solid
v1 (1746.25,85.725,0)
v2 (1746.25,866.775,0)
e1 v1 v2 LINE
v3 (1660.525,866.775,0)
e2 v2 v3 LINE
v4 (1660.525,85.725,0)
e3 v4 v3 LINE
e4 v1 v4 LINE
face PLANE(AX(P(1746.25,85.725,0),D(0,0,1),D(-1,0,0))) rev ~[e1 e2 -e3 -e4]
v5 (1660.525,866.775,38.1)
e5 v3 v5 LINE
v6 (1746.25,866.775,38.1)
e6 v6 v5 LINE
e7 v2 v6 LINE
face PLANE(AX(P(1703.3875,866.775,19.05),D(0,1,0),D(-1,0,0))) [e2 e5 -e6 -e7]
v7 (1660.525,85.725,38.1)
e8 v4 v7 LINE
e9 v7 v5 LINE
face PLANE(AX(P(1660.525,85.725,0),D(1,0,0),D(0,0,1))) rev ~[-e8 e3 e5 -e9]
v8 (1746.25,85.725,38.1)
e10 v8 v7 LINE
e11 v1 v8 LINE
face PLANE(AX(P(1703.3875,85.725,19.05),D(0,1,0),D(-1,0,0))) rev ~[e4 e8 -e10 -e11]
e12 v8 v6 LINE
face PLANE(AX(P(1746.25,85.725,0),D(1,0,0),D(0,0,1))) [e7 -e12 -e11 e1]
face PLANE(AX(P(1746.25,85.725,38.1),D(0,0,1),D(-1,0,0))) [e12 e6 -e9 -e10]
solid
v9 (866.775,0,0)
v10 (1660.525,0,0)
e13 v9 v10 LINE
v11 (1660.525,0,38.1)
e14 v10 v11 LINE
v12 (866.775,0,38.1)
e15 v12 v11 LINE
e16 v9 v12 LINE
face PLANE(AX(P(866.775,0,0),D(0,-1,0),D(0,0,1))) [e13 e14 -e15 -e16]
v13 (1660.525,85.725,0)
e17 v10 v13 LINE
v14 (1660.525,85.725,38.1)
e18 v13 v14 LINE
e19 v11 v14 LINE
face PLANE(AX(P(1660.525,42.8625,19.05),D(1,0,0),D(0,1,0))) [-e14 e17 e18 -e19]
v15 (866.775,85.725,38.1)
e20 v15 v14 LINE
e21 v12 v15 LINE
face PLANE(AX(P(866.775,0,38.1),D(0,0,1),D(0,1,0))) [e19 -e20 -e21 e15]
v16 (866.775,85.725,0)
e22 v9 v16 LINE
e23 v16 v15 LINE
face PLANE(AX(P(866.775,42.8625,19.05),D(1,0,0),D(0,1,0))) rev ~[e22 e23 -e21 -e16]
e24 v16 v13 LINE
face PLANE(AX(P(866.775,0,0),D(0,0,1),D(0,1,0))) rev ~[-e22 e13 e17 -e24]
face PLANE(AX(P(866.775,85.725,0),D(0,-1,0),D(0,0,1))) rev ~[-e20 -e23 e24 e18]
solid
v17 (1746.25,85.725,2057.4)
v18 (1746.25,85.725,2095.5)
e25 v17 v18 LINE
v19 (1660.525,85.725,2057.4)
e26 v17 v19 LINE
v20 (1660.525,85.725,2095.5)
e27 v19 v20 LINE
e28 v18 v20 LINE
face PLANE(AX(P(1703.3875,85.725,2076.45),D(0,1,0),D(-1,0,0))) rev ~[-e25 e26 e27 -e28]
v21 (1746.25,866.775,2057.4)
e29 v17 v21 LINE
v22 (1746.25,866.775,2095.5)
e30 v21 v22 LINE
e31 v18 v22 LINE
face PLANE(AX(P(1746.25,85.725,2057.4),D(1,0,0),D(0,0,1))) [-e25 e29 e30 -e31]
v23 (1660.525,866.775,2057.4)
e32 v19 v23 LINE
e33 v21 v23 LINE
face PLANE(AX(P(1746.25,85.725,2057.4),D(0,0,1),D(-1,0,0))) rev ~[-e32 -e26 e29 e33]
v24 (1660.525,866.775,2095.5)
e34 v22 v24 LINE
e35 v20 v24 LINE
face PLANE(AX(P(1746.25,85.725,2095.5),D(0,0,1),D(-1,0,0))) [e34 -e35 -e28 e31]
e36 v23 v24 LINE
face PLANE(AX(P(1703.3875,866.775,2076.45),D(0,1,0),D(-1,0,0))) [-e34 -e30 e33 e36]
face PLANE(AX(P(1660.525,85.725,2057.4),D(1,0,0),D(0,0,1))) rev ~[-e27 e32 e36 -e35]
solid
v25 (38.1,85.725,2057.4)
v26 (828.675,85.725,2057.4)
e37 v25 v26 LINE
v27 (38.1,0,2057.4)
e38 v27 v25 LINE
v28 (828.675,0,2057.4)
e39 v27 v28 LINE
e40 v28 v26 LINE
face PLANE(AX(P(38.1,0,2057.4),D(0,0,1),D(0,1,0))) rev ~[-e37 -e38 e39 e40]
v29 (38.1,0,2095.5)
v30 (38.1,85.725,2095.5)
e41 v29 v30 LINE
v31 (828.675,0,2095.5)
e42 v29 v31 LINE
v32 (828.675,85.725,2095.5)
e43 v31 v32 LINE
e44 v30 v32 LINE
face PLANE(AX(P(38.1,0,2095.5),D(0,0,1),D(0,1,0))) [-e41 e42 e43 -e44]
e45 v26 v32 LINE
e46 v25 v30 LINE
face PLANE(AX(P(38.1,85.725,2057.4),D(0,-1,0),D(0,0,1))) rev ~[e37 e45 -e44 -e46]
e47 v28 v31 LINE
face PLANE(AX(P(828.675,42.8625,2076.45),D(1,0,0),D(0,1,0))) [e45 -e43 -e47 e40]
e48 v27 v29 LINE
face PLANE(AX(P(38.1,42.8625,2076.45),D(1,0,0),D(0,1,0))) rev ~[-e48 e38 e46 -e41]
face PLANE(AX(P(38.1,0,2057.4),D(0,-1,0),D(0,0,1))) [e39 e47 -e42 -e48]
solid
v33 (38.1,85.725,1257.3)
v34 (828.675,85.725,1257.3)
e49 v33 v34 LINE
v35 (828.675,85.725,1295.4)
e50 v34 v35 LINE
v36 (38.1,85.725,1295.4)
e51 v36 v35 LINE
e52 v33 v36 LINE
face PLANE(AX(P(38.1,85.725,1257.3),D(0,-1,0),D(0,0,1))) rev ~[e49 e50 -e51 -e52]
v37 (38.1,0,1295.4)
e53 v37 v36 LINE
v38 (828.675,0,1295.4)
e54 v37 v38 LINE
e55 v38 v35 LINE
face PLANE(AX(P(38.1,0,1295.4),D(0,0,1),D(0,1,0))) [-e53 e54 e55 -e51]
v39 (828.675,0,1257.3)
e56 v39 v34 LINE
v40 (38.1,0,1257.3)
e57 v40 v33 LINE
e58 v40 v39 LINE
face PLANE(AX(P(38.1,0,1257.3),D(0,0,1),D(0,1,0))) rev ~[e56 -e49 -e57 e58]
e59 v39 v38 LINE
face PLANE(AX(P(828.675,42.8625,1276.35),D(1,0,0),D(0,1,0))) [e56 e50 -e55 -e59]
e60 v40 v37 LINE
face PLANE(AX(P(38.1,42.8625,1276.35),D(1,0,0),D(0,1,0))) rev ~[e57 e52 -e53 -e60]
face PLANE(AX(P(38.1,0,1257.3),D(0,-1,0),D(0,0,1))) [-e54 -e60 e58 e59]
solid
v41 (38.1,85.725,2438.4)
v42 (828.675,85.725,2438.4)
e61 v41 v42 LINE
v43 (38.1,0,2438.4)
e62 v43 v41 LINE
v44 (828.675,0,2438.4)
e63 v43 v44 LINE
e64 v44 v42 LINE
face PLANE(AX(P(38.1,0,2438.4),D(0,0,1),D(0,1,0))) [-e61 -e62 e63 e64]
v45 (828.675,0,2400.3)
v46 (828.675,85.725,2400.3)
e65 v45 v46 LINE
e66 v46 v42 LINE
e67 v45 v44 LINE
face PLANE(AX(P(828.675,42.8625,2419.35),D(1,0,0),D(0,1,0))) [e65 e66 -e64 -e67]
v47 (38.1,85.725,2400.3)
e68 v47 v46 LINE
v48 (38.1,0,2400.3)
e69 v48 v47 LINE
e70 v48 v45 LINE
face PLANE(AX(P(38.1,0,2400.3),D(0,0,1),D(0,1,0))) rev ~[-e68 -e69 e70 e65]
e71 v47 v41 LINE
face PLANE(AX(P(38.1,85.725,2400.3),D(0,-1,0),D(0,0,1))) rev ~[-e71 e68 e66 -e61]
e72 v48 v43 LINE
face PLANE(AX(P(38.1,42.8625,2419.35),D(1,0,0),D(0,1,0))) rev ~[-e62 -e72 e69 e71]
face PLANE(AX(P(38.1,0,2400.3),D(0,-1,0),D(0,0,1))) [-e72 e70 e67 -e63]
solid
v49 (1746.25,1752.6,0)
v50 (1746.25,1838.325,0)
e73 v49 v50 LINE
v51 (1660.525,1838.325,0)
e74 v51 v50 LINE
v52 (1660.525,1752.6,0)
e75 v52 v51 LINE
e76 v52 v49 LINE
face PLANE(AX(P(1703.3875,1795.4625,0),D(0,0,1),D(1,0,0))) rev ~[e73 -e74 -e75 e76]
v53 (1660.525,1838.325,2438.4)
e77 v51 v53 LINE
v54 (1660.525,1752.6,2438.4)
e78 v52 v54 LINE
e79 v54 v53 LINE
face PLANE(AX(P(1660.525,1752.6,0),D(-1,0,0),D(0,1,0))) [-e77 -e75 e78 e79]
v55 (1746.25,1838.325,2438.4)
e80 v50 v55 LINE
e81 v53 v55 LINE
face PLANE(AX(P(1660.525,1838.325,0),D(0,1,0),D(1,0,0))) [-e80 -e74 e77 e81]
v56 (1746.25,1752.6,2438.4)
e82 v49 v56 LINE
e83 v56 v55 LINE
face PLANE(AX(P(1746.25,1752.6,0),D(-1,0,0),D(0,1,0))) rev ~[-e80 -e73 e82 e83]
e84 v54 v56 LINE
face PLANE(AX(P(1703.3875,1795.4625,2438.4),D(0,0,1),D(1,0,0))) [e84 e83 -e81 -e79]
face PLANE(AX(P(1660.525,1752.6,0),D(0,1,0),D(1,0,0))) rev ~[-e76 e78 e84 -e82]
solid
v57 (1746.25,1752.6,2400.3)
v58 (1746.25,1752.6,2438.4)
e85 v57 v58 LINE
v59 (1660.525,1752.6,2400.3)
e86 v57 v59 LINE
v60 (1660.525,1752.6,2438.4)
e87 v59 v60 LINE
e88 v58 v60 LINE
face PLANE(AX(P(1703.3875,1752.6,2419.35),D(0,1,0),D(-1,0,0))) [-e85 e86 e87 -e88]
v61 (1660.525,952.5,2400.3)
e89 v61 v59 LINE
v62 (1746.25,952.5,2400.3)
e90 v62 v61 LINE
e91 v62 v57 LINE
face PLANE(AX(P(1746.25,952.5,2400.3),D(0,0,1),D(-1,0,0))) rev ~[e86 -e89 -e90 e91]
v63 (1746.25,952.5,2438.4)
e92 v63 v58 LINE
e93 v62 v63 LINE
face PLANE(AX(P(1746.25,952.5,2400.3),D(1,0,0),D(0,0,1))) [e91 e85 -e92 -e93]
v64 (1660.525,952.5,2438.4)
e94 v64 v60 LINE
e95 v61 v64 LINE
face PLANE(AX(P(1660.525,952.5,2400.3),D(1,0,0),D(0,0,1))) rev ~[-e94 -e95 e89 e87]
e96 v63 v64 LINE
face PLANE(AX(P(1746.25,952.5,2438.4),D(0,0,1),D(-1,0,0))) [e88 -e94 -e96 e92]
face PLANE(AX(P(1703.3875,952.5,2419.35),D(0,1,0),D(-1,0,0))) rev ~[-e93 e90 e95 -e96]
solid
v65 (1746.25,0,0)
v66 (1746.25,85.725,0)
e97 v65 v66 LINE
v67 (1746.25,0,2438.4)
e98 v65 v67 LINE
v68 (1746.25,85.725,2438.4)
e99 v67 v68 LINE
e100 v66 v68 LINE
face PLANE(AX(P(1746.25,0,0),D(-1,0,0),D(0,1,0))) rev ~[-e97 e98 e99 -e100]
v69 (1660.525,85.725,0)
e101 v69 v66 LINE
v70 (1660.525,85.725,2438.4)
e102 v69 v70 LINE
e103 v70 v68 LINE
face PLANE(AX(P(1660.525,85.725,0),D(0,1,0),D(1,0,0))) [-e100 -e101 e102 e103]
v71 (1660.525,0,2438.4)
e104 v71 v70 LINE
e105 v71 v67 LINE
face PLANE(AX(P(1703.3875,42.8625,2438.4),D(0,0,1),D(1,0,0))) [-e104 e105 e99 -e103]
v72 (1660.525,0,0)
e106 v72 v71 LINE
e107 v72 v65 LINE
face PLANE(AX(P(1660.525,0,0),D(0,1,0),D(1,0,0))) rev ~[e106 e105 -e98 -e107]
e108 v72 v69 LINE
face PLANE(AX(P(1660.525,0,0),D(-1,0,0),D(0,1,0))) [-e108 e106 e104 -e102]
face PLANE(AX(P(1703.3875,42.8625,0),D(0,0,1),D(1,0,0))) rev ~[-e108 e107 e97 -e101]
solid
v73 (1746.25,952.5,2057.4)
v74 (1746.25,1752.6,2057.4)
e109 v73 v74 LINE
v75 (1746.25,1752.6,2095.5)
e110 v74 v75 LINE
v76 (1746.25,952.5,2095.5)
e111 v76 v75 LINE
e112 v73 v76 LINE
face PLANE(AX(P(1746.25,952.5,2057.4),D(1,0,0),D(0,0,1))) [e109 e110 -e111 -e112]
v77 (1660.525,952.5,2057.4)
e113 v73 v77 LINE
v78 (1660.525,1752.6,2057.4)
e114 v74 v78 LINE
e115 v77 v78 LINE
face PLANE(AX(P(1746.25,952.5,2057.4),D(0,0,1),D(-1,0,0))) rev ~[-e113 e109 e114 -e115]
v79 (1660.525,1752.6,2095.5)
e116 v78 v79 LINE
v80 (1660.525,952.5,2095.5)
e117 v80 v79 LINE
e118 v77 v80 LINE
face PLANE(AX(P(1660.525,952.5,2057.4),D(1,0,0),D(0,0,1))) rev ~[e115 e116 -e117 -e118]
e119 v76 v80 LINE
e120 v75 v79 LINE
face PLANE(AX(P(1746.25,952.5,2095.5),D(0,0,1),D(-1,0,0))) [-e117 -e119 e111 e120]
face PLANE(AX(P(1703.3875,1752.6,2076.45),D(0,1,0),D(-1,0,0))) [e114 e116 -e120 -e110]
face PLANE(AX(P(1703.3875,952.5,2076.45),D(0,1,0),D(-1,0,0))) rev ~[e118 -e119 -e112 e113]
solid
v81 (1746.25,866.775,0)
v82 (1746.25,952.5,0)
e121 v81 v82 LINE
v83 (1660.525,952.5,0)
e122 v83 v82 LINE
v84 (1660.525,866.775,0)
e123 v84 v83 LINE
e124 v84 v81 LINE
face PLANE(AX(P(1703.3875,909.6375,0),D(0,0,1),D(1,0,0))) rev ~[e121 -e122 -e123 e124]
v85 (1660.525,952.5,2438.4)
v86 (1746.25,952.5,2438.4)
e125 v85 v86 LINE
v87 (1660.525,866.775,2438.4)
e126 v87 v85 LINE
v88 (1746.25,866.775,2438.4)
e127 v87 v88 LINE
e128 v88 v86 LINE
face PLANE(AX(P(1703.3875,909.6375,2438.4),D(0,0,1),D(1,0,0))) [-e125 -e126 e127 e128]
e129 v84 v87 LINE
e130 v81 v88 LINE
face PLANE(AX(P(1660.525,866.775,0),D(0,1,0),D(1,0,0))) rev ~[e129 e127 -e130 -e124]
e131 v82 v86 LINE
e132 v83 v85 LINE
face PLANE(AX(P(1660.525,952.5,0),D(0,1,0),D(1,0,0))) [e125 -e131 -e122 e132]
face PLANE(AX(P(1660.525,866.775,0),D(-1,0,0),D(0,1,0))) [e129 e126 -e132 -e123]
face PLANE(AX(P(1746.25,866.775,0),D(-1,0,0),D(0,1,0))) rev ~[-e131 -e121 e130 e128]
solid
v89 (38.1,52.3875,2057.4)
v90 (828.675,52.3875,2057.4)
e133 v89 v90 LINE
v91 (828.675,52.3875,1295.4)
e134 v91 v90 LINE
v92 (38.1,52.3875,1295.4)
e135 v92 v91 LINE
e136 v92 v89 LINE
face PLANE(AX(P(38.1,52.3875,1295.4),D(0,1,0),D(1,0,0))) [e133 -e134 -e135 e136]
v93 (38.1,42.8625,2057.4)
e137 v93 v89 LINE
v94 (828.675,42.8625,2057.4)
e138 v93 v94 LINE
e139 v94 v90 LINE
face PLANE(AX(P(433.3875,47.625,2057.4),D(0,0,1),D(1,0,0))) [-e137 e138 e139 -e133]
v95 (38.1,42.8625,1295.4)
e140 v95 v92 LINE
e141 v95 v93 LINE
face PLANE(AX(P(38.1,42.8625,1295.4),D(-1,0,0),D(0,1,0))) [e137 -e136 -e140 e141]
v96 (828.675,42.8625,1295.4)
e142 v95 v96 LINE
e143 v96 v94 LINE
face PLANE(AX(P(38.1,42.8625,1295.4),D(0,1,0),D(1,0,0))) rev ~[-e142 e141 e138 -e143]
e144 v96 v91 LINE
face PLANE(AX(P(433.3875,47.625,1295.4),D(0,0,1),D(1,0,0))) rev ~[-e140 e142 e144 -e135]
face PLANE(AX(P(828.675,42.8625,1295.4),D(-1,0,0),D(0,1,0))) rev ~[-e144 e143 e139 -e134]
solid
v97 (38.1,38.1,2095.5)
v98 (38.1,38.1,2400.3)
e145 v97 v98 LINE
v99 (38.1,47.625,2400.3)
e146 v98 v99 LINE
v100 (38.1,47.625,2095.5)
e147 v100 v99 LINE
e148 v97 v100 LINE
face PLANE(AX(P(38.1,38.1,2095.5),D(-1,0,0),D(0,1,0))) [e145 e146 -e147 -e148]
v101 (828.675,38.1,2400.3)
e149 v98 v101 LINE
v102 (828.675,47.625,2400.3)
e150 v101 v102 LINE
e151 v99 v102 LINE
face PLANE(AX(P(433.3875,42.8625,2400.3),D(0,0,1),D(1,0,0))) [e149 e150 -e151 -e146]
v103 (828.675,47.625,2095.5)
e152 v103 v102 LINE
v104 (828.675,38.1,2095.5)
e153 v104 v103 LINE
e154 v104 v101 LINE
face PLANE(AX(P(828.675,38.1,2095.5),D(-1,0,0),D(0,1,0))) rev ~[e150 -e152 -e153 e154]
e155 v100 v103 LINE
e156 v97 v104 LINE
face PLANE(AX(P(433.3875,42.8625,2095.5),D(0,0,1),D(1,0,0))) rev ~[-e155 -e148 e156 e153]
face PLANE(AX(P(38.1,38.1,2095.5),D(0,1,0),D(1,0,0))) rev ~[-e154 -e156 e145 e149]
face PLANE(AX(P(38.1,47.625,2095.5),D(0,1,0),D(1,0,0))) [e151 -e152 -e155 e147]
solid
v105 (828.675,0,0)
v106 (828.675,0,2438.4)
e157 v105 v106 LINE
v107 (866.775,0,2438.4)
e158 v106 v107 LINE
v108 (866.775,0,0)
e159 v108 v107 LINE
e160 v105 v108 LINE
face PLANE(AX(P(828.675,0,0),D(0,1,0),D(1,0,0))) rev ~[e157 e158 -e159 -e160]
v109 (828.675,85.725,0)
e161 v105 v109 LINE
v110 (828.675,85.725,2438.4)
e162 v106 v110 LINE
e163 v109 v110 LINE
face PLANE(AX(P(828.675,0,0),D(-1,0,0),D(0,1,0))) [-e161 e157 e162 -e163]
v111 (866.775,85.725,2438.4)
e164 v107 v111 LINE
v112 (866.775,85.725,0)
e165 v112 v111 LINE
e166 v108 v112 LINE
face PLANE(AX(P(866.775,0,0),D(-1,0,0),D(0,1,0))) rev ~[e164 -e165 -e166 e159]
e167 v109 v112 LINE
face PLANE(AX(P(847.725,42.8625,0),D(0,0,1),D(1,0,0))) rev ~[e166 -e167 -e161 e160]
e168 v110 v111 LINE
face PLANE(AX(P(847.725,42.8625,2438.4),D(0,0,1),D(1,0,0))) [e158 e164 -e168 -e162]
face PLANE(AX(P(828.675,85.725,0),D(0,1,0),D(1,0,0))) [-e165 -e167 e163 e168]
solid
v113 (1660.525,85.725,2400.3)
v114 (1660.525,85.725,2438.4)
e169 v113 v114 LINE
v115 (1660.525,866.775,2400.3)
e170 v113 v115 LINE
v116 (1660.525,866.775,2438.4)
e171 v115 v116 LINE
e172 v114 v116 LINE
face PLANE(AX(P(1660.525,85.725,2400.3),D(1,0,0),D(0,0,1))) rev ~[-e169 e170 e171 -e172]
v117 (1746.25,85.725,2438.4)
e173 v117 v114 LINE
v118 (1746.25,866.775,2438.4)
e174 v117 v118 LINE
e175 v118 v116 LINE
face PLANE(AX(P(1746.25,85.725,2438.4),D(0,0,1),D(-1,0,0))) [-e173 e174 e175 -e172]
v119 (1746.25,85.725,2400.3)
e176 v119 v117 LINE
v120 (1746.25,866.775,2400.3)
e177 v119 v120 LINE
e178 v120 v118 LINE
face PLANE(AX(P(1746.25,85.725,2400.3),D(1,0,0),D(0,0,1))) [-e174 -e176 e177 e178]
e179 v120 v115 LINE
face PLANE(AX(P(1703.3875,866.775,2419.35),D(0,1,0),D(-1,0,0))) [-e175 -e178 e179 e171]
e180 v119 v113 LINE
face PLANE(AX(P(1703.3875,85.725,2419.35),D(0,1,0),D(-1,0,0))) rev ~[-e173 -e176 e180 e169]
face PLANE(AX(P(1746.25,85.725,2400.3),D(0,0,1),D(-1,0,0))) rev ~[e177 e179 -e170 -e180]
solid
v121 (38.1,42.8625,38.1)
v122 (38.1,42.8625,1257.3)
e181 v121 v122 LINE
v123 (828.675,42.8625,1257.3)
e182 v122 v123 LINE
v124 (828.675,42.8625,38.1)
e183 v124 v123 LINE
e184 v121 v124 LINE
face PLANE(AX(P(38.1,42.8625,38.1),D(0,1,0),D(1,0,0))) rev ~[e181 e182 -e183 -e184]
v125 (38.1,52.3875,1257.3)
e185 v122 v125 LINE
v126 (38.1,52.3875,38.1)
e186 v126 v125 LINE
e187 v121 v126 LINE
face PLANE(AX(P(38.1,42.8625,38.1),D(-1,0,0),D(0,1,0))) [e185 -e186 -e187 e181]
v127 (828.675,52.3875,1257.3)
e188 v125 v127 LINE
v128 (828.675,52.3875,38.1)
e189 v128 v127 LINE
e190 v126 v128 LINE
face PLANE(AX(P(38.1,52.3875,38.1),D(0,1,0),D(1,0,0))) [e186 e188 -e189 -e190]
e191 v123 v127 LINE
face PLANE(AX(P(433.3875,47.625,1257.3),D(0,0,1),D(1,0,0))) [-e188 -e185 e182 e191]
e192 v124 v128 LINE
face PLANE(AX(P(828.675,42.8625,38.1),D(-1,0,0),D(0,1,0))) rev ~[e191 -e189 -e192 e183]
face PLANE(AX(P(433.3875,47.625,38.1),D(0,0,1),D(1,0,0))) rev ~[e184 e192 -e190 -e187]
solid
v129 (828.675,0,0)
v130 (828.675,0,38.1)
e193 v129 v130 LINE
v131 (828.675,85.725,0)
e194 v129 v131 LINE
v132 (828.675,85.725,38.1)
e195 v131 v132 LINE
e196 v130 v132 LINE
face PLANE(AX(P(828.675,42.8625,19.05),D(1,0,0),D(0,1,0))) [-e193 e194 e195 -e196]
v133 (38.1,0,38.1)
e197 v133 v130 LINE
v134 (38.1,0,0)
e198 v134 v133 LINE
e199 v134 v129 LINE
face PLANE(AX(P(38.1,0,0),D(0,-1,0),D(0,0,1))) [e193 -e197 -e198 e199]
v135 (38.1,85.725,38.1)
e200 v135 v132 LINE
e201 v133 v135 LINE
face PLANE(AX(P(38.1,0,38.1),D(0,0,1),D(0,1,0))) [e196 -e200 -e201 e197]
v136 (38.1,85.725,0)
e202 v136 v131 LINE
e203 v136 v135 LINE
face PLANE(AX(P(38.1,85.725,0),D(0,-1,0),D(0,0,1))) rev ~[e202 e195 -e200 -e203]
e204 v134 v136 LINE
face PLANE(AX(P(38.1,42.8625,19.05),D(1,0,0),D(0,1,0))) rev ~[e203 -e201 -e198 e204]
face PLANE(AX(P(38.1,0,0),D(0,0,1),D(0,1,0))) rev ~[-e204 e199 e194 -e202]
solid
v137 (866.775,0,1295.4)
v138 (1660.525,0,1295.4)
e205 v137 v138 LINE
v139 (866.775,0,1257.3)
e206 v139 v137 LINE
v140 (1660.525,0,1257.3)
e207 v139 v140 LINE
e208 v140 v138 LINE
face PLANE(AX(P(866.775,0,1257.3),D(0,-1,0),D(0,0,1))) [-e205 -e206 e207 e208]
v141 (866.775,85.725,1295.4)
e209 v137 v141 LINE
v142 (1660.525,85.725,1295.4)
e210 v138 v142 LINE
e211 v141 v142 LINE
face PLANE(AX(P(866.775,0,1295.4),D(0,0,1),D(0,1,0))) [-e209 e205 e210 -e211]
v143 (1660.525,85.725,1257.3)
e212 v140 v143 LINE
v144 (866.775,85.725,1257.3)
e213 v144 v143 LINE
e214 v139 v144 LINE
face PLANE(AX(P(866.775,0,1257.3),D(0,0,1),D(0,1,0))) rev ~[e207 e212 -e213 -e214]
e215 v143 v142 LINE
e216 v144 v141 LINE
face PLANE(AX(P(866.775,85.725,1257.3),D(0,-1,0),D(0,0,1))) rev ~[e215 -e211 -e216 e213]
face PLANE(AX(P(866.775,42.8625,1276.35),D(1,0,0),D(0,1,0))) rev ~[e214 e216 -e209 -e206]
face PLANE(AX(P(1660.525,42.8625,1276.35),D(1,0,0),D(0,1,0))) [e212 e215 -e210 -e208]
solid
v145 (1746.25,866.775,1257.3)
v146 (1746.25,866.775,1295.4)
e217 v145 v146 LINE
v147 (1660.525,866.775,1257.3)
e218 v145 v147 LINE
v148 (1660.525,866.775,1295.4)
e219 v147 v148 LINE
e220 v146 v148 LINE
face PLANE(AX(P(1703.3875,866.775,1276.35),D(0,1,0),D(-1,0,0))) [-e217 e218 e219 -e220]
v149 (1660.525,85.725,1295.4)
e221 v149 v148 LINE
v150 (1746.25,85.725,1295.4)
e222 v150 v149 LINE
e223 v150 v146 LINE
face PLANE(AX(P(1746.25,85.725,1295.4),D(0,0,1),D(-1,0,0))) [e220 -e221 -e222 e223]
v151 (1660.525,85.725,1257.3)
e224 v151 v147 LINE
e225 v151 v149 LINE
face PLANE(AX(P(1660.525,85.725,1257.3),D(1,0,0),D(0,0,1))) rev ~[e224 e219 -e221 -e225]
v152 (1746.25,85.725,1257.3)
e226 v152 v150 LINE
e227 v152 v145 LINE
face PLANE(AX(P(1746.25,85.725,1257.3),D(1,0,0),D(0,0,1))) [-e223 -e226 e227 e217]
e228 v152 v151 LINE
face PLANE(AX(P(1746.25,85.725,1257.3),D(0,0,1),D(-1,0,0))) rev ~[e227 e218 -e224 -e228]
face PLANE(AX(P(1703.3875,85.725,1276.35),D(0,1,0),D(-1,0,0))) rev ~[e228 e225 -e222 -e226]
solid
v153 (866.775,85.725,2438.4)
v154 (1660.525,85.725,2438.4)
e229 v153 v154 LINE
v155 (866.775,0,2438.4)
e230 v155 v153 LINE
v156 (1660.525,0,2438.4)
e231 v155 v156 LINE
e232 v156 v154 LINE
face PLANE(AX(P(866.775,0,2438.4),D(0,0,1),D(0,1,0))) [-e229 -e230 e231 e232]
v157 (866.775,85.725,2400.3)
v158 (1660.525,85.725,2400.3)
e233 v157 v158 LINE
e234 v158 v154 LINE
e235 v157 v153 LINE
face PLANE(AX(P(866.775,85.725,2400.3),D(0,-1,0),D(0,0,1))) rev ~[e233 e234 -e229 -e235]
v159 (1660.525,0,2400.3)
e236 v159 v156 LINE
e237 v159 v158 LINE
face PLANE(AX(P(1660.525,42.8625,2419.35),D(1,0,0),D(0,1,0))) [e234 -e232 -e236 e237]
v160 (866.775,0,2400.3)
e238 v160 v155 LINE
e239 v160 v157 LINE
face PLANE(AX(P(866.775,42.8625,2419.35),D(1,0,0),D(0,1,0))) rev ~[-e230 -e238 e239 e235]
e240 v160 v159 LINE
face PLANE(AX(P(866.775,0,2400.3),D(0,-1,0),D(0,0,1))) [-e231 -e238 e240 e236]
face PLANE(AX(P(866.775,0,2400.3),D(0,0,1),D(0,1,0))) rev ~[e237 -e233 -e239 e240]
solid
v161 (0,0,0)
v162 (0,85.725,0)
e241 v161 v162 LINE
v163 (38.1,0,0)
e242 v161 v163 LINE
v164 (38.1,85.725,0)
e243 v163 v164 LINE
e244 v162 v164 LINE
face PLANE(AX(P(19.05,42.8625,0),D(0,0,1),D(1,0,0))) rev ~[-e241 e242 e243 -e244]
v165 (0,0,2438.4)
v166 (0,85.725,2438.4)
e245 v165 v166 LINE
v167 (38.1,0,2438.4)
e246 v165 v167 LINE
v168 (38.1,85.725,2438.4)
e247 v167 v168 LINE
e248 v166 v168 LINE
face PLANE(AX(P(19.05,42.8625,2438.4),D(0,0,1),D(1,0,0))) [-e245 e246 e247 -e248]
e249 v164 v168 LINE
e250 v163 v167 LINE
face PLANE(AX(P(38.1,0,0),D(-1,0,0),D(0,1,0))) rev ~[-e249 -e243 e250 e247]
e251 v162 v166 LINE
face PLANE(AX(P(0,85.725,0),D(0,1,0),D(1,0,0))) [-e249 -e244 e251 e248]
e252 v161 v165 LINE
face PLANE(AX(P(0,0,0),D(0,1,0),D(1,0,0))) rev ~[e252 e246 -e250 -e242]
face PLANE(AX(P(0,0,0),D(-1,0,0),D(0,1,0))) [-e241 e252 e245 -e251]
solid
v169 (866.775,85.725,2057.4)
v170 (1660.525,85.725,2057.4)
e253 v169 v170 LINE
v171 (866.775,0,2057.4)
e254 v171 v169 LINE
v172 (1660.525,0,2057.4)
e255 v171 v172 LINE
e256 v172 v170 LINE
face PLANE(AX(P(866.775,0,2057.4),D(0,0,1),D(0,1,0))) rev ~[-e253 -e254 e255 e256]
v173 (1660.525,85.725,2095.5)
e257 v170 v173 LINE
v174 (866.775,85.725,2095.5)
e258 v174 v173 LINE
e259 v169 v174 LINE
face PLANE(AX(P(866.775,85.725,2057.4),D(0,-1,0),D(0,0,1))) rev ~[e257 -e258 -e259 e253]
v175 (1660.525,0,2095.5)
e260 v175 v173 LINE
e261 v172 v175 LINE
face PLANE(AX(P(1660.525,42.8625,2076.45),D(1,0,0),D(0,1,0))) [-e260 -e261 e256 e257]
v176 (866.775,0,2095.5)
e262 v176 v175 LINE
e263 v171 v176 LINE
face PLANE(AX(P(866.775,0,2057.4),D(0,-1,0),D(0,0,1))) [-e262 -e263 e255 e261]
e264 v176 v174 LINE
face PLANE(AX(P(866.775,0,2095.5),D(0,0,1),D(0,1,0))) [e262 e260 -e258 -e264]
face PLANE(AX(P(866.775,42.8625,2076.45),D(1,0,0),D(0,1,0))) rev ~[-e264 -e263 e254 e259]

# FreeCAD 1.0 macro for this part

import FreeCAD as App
import Part
import Sketcher

V = App.Vector
Q = App.Units.Quantity

doc = App.newDocument("Part")
body = doc.addObject("PartDesign::Body", "Body")

sketch1 = body.newObject("Sketcher::SketchObject", "Sketch")
sketch1.AttachmentSupport = (doc.getObject("XY_Plane"), [""])
sketch1.MapMode = "FlatFace"
sketch1.addGeometry([
    Part.LineSegment(V(0, 85.725, 0), V(0, 0, 0)),
    Part.LineSegment(V(0, 0, 0), V(38.1, 0, 0)),
    Part.LineSegment(V(38.1, 0, 0), V(38.1, 85.725, 0)),
    Part.LineSegment(V(38.1, 85.725, 0), V(0, 85.725, 0)),
], False)
sketch1.addConstraint([
    Sketcher.Constraint("Coincident", 0, 2, 1, 1),
    Sketcher.Constraint("Coincident", 1, 2, 2, 1),
    Sketcher.Constraint("Coincident", 2, 2, 3, 1),
    Sketcher.Constraint("Coincident", 3, 2, 0, 1),
    Sketcher.Constraint("Vertical", 0),
    Sketcher.Constraint("Horizontal", 1),
    Sketcher.Constraint("Vertical", 2),
    Sketcher.Constraint("Horizontal", 3),
    Sketcher.Constraint("Coincident", 0, 2, -1, 1),
    Sketcher.Constraint("DistanceX", 1, 1, 1, 2, Q("1.5 in")),
    Sketcher.Constraint("DistanceY", 0, 2, 0, 1, Q("3.375 in")),
])
pad1 = body.newObject("PartDesign::Pad", "Pad")
pad1.Profile = sketch1
pad1.Length = Q("96 in")
body2 = doc.addObject("PartDesign::Body", "Body001")

sketch2 = body2.newObject("Sketcher::SketchObject", "Sketch001")
sketch2.AttachmentSupport = (doc.getObject("XY_Plane001"), [""])
sketch2.MapMode = "FlatFace"
sketch2.addGeometry([
    Part.LineSegment(V(828.675, 85.725, 0), V(828.675, 0, 0)),
    Part.LineSegment(V(828.675, 0, 0), V(866.775, 0, 0)),
    Part.LineSegment(V(866.775, 0, 0), V(866.775, 85.725, 0)),
    Part.LineSegment(V(866.775, 85.725, 0), V(828.675, 85.725, 0)),
], False)
sketch2.addConstraint([
    Sketcher.Constraint("Coincident", 0, 2, 1, 1),
    Sketcher.Constraint("Coincident", 1, 2, 2, 1),
    Sketcher.Constraint("Coincident", 2, 2, 3, 1),
    Sketcher.Constraint("Coincident", 3, 2, 0, 1),
    Sketcher.Constraint("Vertical", 0),
    Sketcher.Constraint("Horizontal", 1),
    Sketcher.Constraint("Vertical", 2),
    Sketcher.Constraint("Horizontal", 3),
    Sketcher.Constraint("PointOnObject", 0, 2, -1),
    Sketcher.Constraint("DistanceX", 1, 1, 1, 2, Q("1.5 in")),
    Sketcher.Constraint("DistanceY", 0, 2, 0, 1, Q("3.375 in")),
    Sketcher.Constraint("DistanceX", -1, 1, 0, 2, Q("32.625 in")),
])
pad2 = body2.newObject("PartDesign::Pad", "Pad001")
pad2.Profile = sketch2
pad2.Length = Q("96 in")
body3 = doc.addObject("PartDesign::Body", "Body002")

sketch3 = body3.newObject("Sketcher::SketchObject", "Sketch002")
sketch3.AttachmentSupport = (doc.getObject("XY_Plane002"), [""])
sketch3.MapMode = "FlatFace"
sketch3.addGeometry([
    Part.LineSegment(V(1660.525, 85.725, 0), V(1660.525, 0, 0)),
    Part.LineSegment(V(1660.525, 0, 0), V(1746.25, 0, 0)),
    Part.LineSegment(V(1746.25, 0, 0), V(1746.25, 85.725, 0)),
    Part.LineSegment(V(1746.25, 85.725, 0), V(1660.525, 85.725, 0)),
], False)
sketch3.addConstraint([
    Sketcher.Constraint("Coincident", 0, 2, 1, 1),
    Sketcher.Constraint("Coincident", 1, 2, 2, 1),
    Sketcher.Constraint("Coincident", 2, 2, 3, 1),
    Sketcher.Constraint("Coincident", 3, 2, 0, 1),
    Sketcher.Constraint("Vertical", 0),
    Sketcher.Constraint("Horizontal", 1),
    Sketcher.Constraint("Vertical", 2),
    Sketcher.Constraint("Horizontal", 3),
    Sketcher.Constraint("PointOnObject", 0, 2, -1),
    Sketcher.Constraint("Equal", 3, 0),
    Sketcher.Constraint("DistanceX", 1, 1, 1, 2, Q("3.375 in")),
    Sketcher.Constraint("DistanceX", -1, 1, 1, 2, Q("68.75 in")),
])
pad3 = body3.newObject("PartDesign::Pad", "Pad002")
pad3.Profile = sketch3
pad3.Length = Q("96 in")
body4 = doc.addObject("PartDesign::Body", "Body003")

sketch4 = body4.newObject("Sketcher::SketchObject", "Sketch003")
sketch4.AttachmentSupport = (doc.getObject("XY_Plane003"), [""])
sketch4.MapMode = "FlatFace"
sketch4.addGeometry([
    Part.LineSegment(V(1660.525, 952.5, 0), V(1660.525, 866.775, 0)),
    Part.LineSegment(V(1660.525, 866.775, 0), V(1746.25, 866.775, 0)),
    Part.LineSegment(V(1746.25, 866.775, 0), V(1746.25, 952.5, 0)),
    Part.LineSegment(V(1746.25, 952.5, 0), V(1660.525, 952.5, 0)),
], False)
sketch4.addConstraint([
    Sketcher.Constraint("Coincident", 0, 2, 1, 1),
    Sketcher.Constraint("Coincident", 1, 2, 2, 1),
    Sketcher.Constraint("Coincident", 2, 2, 3, 1),
    Sketcher.Constraint("Coincident", 3, 2, 0, 1),
    Sketcher.Constraint("Vertical", 0),
    Sketcher.Constraint("Horizontal", 1),
    Sketcher.Constraint("Vertical", 2),
    Sketcher.Constraint("Horizontal", 3),
    Sketcher.Constraint("Equal", 3, 0),
    Sketcher.Constraint("DistanceY", -1, 1, 2, 2, Q("37.5 in")),
    Sketcher.Constraint("DistanceX", 1, 1, 1, 2, Q("3.375 in")),
    Sketcher.Constraint("DistanceX", -1, 1, 1, 2, Q("68.75 in")),
])
pad4 = body4.newObject("PartDesign::Pad", "Pad003")
pad4.Profile = sketch4
pad4.Length = Q("96 in")
body5 = doc.addObject("PartDesign::Body", "Body004")

sketch5 = body5.newObject("Sketcher::SketchObject", "Sketch004")
sketch5.AttachmentSupport = (doc.getObject("XY_Plane004"), [""])
sketch5.MapMode = "FlatFace"
sketch5.addGeometry([
    Part.LineSegment(V(1660.525, 1838.325, 0), V(1660.525, 1752.6, 0)),
    Part.LineSegment(V(1660.525, 1752.6, 0), V(1746.25, 1752.6, 0)),
    Part.LineSegment(V(1746.25, 1752.6, 0), V(1746.25, 1838.325, 0)),
    Part.LineSegment(V(1746.25, 1838.325, 0), V(1660.525, 1838.325, 0)),
], False)
sketch5.addConstraint([
    Sketcher.Constraint("Coincident", 0, 2, 1, 1),
    Sketcher.Constraint("Coincident", 1, 2, 2, 1),
    Sketcher.Constraint("Coincident", 2, 2, 3, 1),
    Sketcher.Constraint("Coincident", 3, 2, 0, 1),
    Sketcher.Constraint("Vertical", 0),
    Sketcher.Constraint("Horizontal", 1),
    Sketcher.Constraint("Vertical", 2),
    Sketcher.Constraint("Horizontal", 3),
    Sketcher.Constraint("Equal", 3, 0),
    Sketcher.Constraint("DistanceY", -1, 1, 0, 2, Q("69 in")),
    Sketcher.Constraint("DistanceX", 1, 1, 1, 2, Q("3.375 in")),
    Sketcher.Constraint("DistanceX", -1, 1, 1, 2, Q("68.75 in")),
])
pad5 = body5.newObject("PartDesign::Pad", "Pad004")
pad5.Profile = sketch5
pad5.Length = Q("96 in")
body6 = doc.addObject("PartDesign::Body", "Body005")

sketch6 = body6.newObject("Sketcher::SketchObject", "Sketch005")
sketch6.AttachmentSupport = (doc.getObject("YZ_Plane005"), [""])
sketch6.MapMode = "FlatFace"
sketch6.AttachmentOffset = App.Placement(V(0, 0, 1.5 * 25.4), App.Rotation())
sketch6.addGeometry([
    Part.LineSegment(V(0, 38.1, 0), V(0, 0, 0)),
    Part.LineSegment(V(0, 0, 0), V(85.725, 0, 0)),
    Part.LineSegment(V(85.725, 0, 0), V(85.725, 38.1, 0)),
    Part.LineSegment(V(85.725, 38.1, 0), V(0, 38.1, 0)),
], False)
sketch6.addConstraint([
    Sketcher.Constraint("Coincident", 0, 2, 1, 1),
    Sketcher.Constraint("Coincident", 1, 2, 2, 1),
    Sketcher.Constraint("Coincident", 2, 2, 3, 1),
    Sketcher.Constraint("Coincident", 3, 2, 0, 1),
    Sketcher.Constraint("Vertical", 0),
    Sketcher.Constraint("Horizontal", 1),
    Sketcher.Constraint("Vertical", 2),
    Sketcher.Constraint("Horizontal", 3),
    Sketcher.Constraint("Coincident", 0, 2, -1, 1),
    Sketcher.Constraint("DistanceY", 0, 2, 0, 1, Q("1.5 in")),
    Sketcher.Constraint("DistanceX", 1, 1, 1, 2, Q("3.375 in")),
])
pad6 = body6.newObject("PartDesign::Pad", "Pad005")
pad6.Profile = sketch6
pad6.Length = Q("31.125 in")
body7 = doc.addObject("PartDesign::Body", "Body006")

sketch7 = body7.newObject("Sketcher::SketchObject", "Sketch006")
sketch7.AttachmentSupport = (doc.getObject("YZ_Plane006"), [""])
sketch7.MapMode = "FlatFace"
sketch7.AttachmentOffset = App.Placement(V(0, 0, 34.125 * 25.4), App.Rotation())
sketch7.addGeometry([
    Part.LineSegment(V(0, 38.1, 0), V(0, 0, 0)),
    Part.LineSegment(V(0, 0, 0), V(85.725, 0, 0)),
    Part.LineSegment(V(85.725, 0, 0), V(85.725, 38.1, 0)),
    Part.LineSegment(V(85.725, 38.1, 0), V(0, 38.1, 0)),
], False)
sketch7.addConstraint([
    Sketcher.Constraint("Coincident", 0, 2, 1, 1),
    Sketcher.Constraint("Coincident", 1, 2, 2, 1),
    Sketcher.Constraint("Coincident", 2, 2, 3, 1),
    Sketcher.Constraint("Coincident", 3, 2, 0, 1),
    Sketcher.Constraint("Vertical", 0),
    Sketcher.Constraint("Horizontal", 1),
    Sketcher.Constraint("Vertical", 2),
    Sketcher.Constraint("Horizontal", 3),
    Sketcher.Constraint("Coincident", 0, 2, -1, 1),
    Sketcher.Constraint("DistanceY", 0, 2, 0, 1, Q("1.5 in")),
    Sketcher.Constraint("DistanceX", 1, 1, 1, 2, Q("3.375 in")),
])
pad7 = body7.newObject("PartDesign::Pad", "Pad006")
pad7.Profile = sketch7
pad7.Length = Q("31.25 in")
body8 = doc.addObject("PartDesign::Body", "Body007")

sketch8 = body8.newObject("Sketcher::SketchObject", "Sketch007")
sketch8.AttachmentSupport = (doc.getObject("XZ_Plane007"), [""])
sketch8.MapMode = "FlatFace"
sketch8.AttachmentOffset = App.Placement(V(0, 0, -3.375 * 25.4), App.Rotation())
sketch8.addGeometry([
    Part.LineSegment(V(1746.25, 38.1, 0), V(1746.25, 0, 0)),
    Part.LineSegment(V(1746.25, 0, 0), V(1660.525, 0, 0)),
    Part.LineSegment(V(1660.525, 0, 0), V(1660.525, 38.1, 0)),
    Part.LineSegment(V(1660.525, 38.1, 0), V(1746.25, 38.1, 0)),
], False)
sketch8.addConstraint([
    Sketcher.Constraint("Coincident", 0, 2, 1, 1),
    Sketcher.Constraint("Coincident", 1, 2, 2, 1),
    Sketcher.Constraint("Coincident", 2, 2, 3, 1),
    Sketcher.Constraint("Coincident", 3, 2, 0, 1),
    Sketcher.Constraint("Vertical", 0),
    Sketcher.Constraint("Horizontal", 1),
    Sketcher.Constraint("Vertical", 2),
    Sketcher.Constraint("Horizontal", 3),
    Sketcher.Constraint("PointOnObject", 0, 2, -1),
    Sketcher.Constraint("DistanceY", 0, 2, 0, 1, Q("1.5 in")),
    Sketcher.Constraint("DistanceX", 1, 2, 1, 1, Q("3.375 in")),
    Sketcher.Constraint("DistanceX", -1, 1, 0, 2, Q("68.75 in")),
])
pad8 = body8.newObject("PartDesign::Pad", "Pad007")
pad8.Profile = sketch8
pad8.Length = Q("30.75 in")
pad8.Reversed = True
body9 = doc.addObject("PartDesign::Body", "Body008")

sketch9 = body9.newObject("Sketcher::SketchObject", "Sketch008")
sketch9.AttachmentSupport = (doc.getObject("XZ_Plane008"), [""])
sketch9.MapMode = "FlatFace"
sketch9.AttachmentOffset = App.Placement(V(0, 0, -3.375 * 25.4), App.Rotation())
sketch9.addGeometry([
    Part.LineSegment(V(1746.25, 2438.4, 0), V(1746.25, 2400.3, 0)),
    Part.LineSegment(V(1746.25, 2400.3, 0), V(1660.525, 2400.3, 0)),
    Part.LineSegment(V(1660.525, 2400.3, 0), V(1660.525, 2438.4, 0)),
    Part.LineSegment(V(1660.525, 2438.4, 0), V(1746.25, 2438.4, 0)),
], False)
sketch9.addConstraint([
    Sketcher.Constraint("Coincident", 0, 2, 1, 1),
    Sketcher.Constraint("Coincident", 1, 2, 2, 1),
    Sketcher.Constraint("Coincident", 2, 2, 3, 1),
    Sketcher.Constraint("Coincident", 3, 2, 0, 1),
    Sketcher.Constraint("Vertical", 0),
    Sketcher.Constraint("Horizontal", 1),
    Sketcher.Constraint("Vertical", 2),
    Sketcher.Constraint("Horizontal", 3),
    Sketcher.Constraint("DistanceY", 0, 2, 0, 1, Q("1.5 in")),
    Sketcher.Constraint("DistanceY", -1, 1, 2, 2, Q("96 in")),
    Sketcher.Constraint("DistanceX", 1, 2, 1, 1, Q("3.375 in")),
    Sketcher.Constraint("DistanceX", -1, 1, 0, 2, Q("68.75 in")),
])
pad9 = body9.newObject("PartDesign::Pad", "Pad008")
pad9.Profile = sketch9
pad9.Length = Q("30.75 in")
pad9.Reversed = True
body10 = doc.addObject("PartDesign::Body", "Body009")

sketch10 = body10.newObject("Sketcher::SketchObject", "Sketch009")
sketch10.AttachmentSupport = (doc.getObject("YZ_Plane009"), [""])
sketch10.MapMode = "FlatFace"
sketch10.AttachmentOffset = App.Placement(V(0, 0, 34.125 * 25.4), App.Rotation())
sketch10.addGeometry([
    Part.LineSegment(V(0, 2438.4, 0), V(0, 2400.3, 0)),
    Part.LineSegment(V(0, 2400.3, 0), V(85.725, 2400.3, 0)),
    Part.LineSegment(V(85.725, 2400.3, 0), V(85.725, 2438.4, 0)),
    Part.LineSegment(V(85.725, 2438.4, 0), V(0, 2438.4, 0)),
], False)
sketch10.addConstraint([
    Sketcher.Constraint("Coincident", 0, 2, 1, 1),
    Sketcher.Constraint("Coincident", 1, 2, 2, 1),
    Sketcher.Constraint("Coincident", 2, 2, 3, 1),
    Sketcher.Constraint("Coincident", 3, 2, 0, 1),
    Sketcher.Constraint("Vertical", 0),
    Sketcher.Constraint("Horizontal", 1),
    Sketcher.Constraint("Vertical", 2),
    Sketcher.Constraint("Horizontal", 3),
    Sketcher.Constraint("PointOnObject", 0, 2, -2),
    Sketcher.Constraint("DistanceY", 0, 2, 0, 1, Q("1.5 in")),
    Sketcher.Constraint("DistanceY", -1, 1, 2, 2, Q("96 in")),
    Sketcher.Constraint("DistanceX", 1, 1, 1, 2, Q("3.375 in")),
])
pad10 = body10.newObject("PartDesign::Pad", "Pad009")
pad10.Profile = sketch10
pad10.Length = Q("31.25 in")
body11 = doc.addObject("PartDesign::Body", "Body010")

sketch11 = body11.newObject("Sketcher::SketchObject", "Sketch010")
sketch11.AttachmentSupport = (doc.getObject("YZ_Plane010"), [""])
sketch11.MapMode = "FlatFace"
sketch11.AttachmentOffset = App.Placement(V(0, 0, 1.5 * 25.4), App.Rotation())
sketch11.addGeometry([
    Part.LineSegment(V(0, 2438.4, 0), V(0, 2400.3, 0)),
    Part.LineSegment(V(0, 2400.3, 0), V(85.725, 2400.3, 0)),
    Part.LineSegment(V(85.725, 2400.3, 0), V(85.725, 2438.4, 0)),
    Part.LineSegment(V(85.725, 2438.4, 0), V(0, 2438.4, 0)),
], False)
sketch11.addConstraint([
    Sketcher.Constraint("Coincident", 0, 2, 1, 1),
    Sketcher.Constraint("Coincident", 1, 2, 2, 1),
    Sketcher.Constraint("Coincident", 2, 2, 3, 1),
    Sketcher.Constraint("Coincident", 3, 2, 0, 1),
    Sketcher.Constraint("Vertical", 0),
    Sketcher.Constraint("Horizontal", 1),
    Sketcher.Constraint("Vertical", 2),
    Sketcher.Constraint("Horizontal", 3),
    Sketcher.Constraint("PointOnObject", 0, 2, -2),
    Sketcher.Constraint("DistanceY", 0, 2, 0, 1, Q("1.5 in")),
    Sketcher.Constraint("DistanceY", -1, 1, 2, 2, Q("96 in")),
    Sketcher.Constraint("DistanceX", 1, 1, 1, 2, Q("3.375 in")),
])
pad11 = body11.newObject("PartDesign::Pad", "Pad010")
pad11.Profile = sketch11
pad11.Length = Q("31.125 in")
body12 = doc.addObject("PartDesign::Body", "Body011")

sketch12 = body12.newObject("Sketcher::SketchObject", "Sketch011")
sketch12.AttachmentSupport = (doc.getObject("XZ_Plane011"), [""])
sketch12.MapMode = "FlatFace"
sketch12.AttachmentOffset = App.Placement(V(0, 0, -37.5 * 25.4), App.Rotation())
sketch12.addGeometry([
    Part.LineSegment(V(1746.25, 2438.4, 0), V(1746.25, 2400.3, 0)),
    Part.LineSegment(V(1746.25, 2400.3, 0), V(1660.525, 2400.3, 0)),
    Part.LineSegment(V(1660.525, 2400.3, 0), V(1660.525, 2438.4, 0)),
    Part.LineSegment(V(1660.525, 2438.4, 0), V(1746.25, 2438.4, 0)),
], False)
sketch12.addConstraint([
    Sketcher.Constraint("Coincident", 0, 2, 1, 1),
    Sketcher.Constraint("Coincident", 1, 2, 2, 1),
    Sketcher.Constraint("Coincident", 2, 2, 3, 1),
    Sketcher.Constraint("Coincident", 3, 2, 0, 1),
    Sketcher.Constraint("Vertical", 0),
    Sketcher.Constraint("Horizontal", 1),
    Sketcher.Constraint("Vertical", 2),
    Sketcher.Constraint("Horizontal", 3),
    Sketcher.Constraint("DistanceY", 0, 2, 0, 1, Q("1.5 in")),
    Sketcher.Constraint("DistanceY", -1, 1, 2, 2, Q("96 in")),
    Sketcher.Constraint("DistanceX", 1, 2, 1, 1, Q("3.375 in")),
    Sketcher.Constraint("DistanceX", -1, 1, 0, 2, Q("68.75 in")),
])
pad12 = body12.newObject("PartDesign::Pad", "Pad011")
pad12.Profile = sketch12
pad12.Length = Q("31.5 in")
pad12.Reversed = True
body13 = doc.addObject("PartDesign::Body", "Body012")

sketch13 = body13.newObject("Sketcher::SketchObject", "Sketch012")
sketch13.AttachmentSupport = (doc.getObject("YZ_Plane012"), [""])
sketch13.MapMode = "FlatFace"
sketch13.AttachmentOffset = App.Placement(V(0, 0, 1.5 * 25.4), App.Rotation())
sketch13.addGeometry([
    Part.LineSegment(V(0, 2095.5, 0), V(0, 2057.4, 0)),
    Part.LineSegment(V(0, 2057.4, 0), V(85.725, 2057.4, 0)),
    Part.LineSegment(V(85.725, 2057.4, 0), V(85.725, 2095.5, 0)),
    Part.LineSegment(V(85.725, 2095.5, 0), V(0, 2095.5, 0)),
], False)
sketch13.addConstraint([
    Sketcher.Constraint("Coincident", 0, 2, 1, 1),
    Sketcher.Constraint("Coincident", 1, 2, 2, 1),
    Sketcher.Constraint("Coincident", 2, 2, 3, 1),
    Sketcher.Constraint("Coincident", 3, 2, 0, 1),
    Sketcher.Constraint("Vertical", 0),
    Sketcher.Constraint("Horizontal", 1),
    Sketcher.Constraint("Vertical", 2),
    Sketcher.Constraint("Horizontal", 3),
    Sketcher.Constraint("PointOnObject", 0, 2, -2),
    Sketcher.Constraint("DistanceY", 0, 2, 0, 1, Q("1.5 in")),
    Sketcher.Constraint("DistanceY", -1, 1, 0, 2, Q("81 in")),
    Sketcher.Constraint("DistanceX", 1, 1, 1, 2, Q("3.375 in")),
])
pad13 = body13.newObject("PartDesign::Pad", "Pad012")
pad13.Profile = sketch13
pad13.Length = Q("31.125 in")
body14 = doc.addObject("PartDesign::Body", "Body013")

sketch14 = body14.newObject("Sketcher::SketchObject", "Sketch013")
sketch14.AttachmentSupport = (doc.getObject("YZ_Plane013"), [""])
sketch14.MapMode = "FlatFace"
sketch14.AttachmentOffset = App.Placement(V(0, 0, 34.125 * 25.4), App.Rotation())
sketch14.addGeometry([
    Part.LineSegment(V(0, 2095.5, 0), V(0, 2057.4, 0)),
    Part.LineSegment(V(0, 2057.4, 0), V(85.725, 2057.4, 0)),
    Part.LineSegment(V(85.725, 2057.4, 0), V(85.725, 2095.5, 0)),
    Part.LineSegment(V(85.725, 2095.5, 0), V(0, 2095.5, 0)),
], False)
sketch14.addConstraint([
    Sketcher.Constraint("Coincident", 0, 2, 1, 1),
    Sketcher.Constraint("Coincident", 1, 2, 2, 1),
    Sketcher.Constraint("Coincident", 2, 2, 3, 1),
    Sketcher.Constraint("Coincident", 3, 2, 0, 1),
    Sketcher.Constraint("Vertical", 0),
    Sketcher.Constraint("Horizontal", 1),
    Sketcher.Constraint("Vertical", 2),
    Sketcher.Constraint("Horizontal", 3),
    Sketcher.Constraint("PointOnObject", 0, 2, -2),
    Sketcher.Constraint("DistanceY", 0, 2, 0, 1, Q("1.5 in")),
    Sketcher.Constraint("DistanceY", -1, 1, 0, 2, Q("81 in")),
    Sketcher.Constraint("DistanceX", 1, 1, 1, 2, Q("3.375 in")),
])
pad14 = body14.newObject("PartDesign::Pad", "Pad013")
pad14.Profile = sketch14
pad14.Length = Q("31.25 in")
body15 = doc.addObject("PartDesign::Body", "Body014")

sketch15 = body15.newObject("Sketcher::SketchObject", "Sketch014")
sketch15.AttachmentSupport = (doc.getObject("XZ_Plane014"), [""])
sketch15.MapMode = "FlatFace"
sketch15.AttachmentOffset = App.Placement(V(0, 0, -3.375 * 25.4), App.Rotation())
sketch15.addGeometry([
    Part.LineSegment(V(1746.25, 2095.5, 0), V(1746.25, 2057.4, 0)),
    Part.LineSegment(V(1746.25, 2057.4, 0), V(1660.525, 2057.4, 0)),
    Part.LineSegment(V(1660.525, 2057.4, 0), V(1660.525, 2095.5, 0)),
    Part.LineSegment(V(1660.525, 2095.5, 0), V(1746.25, 2095.5, 0)),
], False)
sketch15.addConstraint([
    Sketcher.Constraint("Coincident", 0, 2, 1, 1),
    Sketcher.Constraint("Coincident", 1, 2, 2, 1),
    Sketcher.Constraint("Coincident", 2, 2, 3, 1),
    Sketcher.Constraint("Coincident", 3, 2, 0, 1),
    Sketcher.Constraint("Vertical", 0),
    Sketcher.Constraint("Horizontal", 1),
    Sketcher.Constraint("Vertical", 2),
    Sketcher.Constraint("Horizontal", 3),
    Sketcher.Constraint("DistanceY", 0, 2, 0, 1, Q("1.5 in")),
    Sketcher.Constraint("DistanceY", -1, 1, 0, 2, Q("81 in")),
    Sketcher.Constraint("DistanceX", 1, 2, 1, 1, Q("3.375 in")),
    Sketcher.Constraint("DistanceX", -1, 1, 0, 2, Q("68.75 in")),
])
pad15 = body15.newObject("PartDesign::Pad", "Pad014")
pad15.Profile = sketch15
pad15.Length = Q("30.75 in")
pad15.Reversed = True
body16 = doc.addObject("PartDesign::Body", "Body015")

sketch16 = body16.newObject("Sketcher::SketchObject", "Sketch015")
sketch16.AttachmentSupport = (doc.getObject("XZ_Plane015"), [""])
sketch16.MapMode = "FlatFace"
sketch16.AttachmentOffset = App.Placement(V(0, 0, -37.5 * 25.4), App.Rotation())
sketch16.addGeometry([
    Part.LineSegment(V(1746.25, 2095.5, 0), V(1746.25, 2057.4, 0)),
    Part.LineSegment(V(1746.25, 2057.4, 0), V(1660.525, 2057.4, 0)),
    Part.LineSegment(V(1660.525, 2057.4, 0), V(1660.525, 2095.5, 0)),
    Part.LineSegment(V(1660.525, 2095.5, 0), V(1746.25, 2095.5, 0)),
], False)
sketch16.addConstraint([
    Sketcher.Constraint("Coincident", 0, 2, 1, 1),
    Sketcher.Constraint("Coincident", 1, 2, 2, 1),
    Sketcher.Constraint("Coincident", 2, 2, 3, 1),
    Sketcher.Constraint("Coincident", 3, 2, 0, 1),
    Sketcher.Constraint("Vertical", 0),
    Sketcher.Constraint("Horizontal", 1),
    Sketcher.Constraint("Vertical", 2),
    Sketcher.Constraint("Horizontal", 3),
    Sketcher.Constraint("DistanceY", 0, 2, 0, 1, Q("1.5 in")),
    Sketcher.Constraint("DistanceY", -1, 1, 0, 2, Q("81 in")),
    Sketcher.Constraint("DistanceX", 1, 2, 1, 1, Q("3.375 in")),
    Sketcher.Constraint("DistanceX", -1, 1, 0, 2, Q("68.75 in")),
])
pad16 = body16.newObject("PartDesign::Pad", "Pad015")
pad16.Profile = sketch16
pad16.Length = Q("31.5 in")
pad16.Reversed = True
body17 = doc.addObject("PartDesign::Body", "Body016")

sketch17 = body17.newObject("Sketcher::SketchObject", "Sketch016")
sketch17.AttachmentSupport = (doc.getObject("XZ_Plane016"), [""])
sketch17.MapMode = "FlatFace"
sketch17.AttachmentOffset = App.Placement(V(0, 0, -3.375 * 25.4), App.Rotation())
sketch17.addGeometry([
    Part.LineSegment(V(1746.25, 1295.4, 0), V(1746.25, 1257.3, 0)),
    Part.LineSegment(V(1746.25, 1257.3, 0), V(1660.525, 1257.3, 0)),
    Part.LineSegment(V(1660.525, 1257.3, 0), V(1660.525, 1295.4, 0)),
    Part.LineSegment(V(1660.525, 1295.4, 0), V(1746.25, 1295.4, 0)),
], False)
sketch17.addConstraint([
    Sketcher.Constraint("Coincident", 0, 2, 1, 1),
    Sketcher.Constraint("Coincident", 1, 2, 2, 1),
    Sketcher.Constraint("Coincident", 2, 2, 3, 1),
    Sketcher.Constraint("Coincident", 3, 2, 0, 1),
    Sketcher.Constraint("Vertical", 0),
    Sketcher.Constraint("Horizontal", 1),
    Sketcher.Constraint("Vertical", 2),
    Sketcher.Constraint("Horizontal", 3),
    Sketcher.Constraint("DistanceY", 0, 2, 0, 1, Q("1.5 in")),
    Sketcher.Constraint("DistanceY", -1, 1, 2, 2, Q("51 in")),
    Sketcher.Constraint("DistanceX", 1, 2, 1, 1, Q("3.375 in")),
    Sketcher.Constraint("DistanceX", -1, 1, 0, 2, Q("68.75 in")),
])
pad17 = body17.newObject("PartDesign::Pad", "Pad016")
pad17.Profile = sketch17
pad17.Length = Q("30.75 in")
pad17.Reversed = True
body18 = doc.addObject("PartDesign::Body", "Body017")

sketch18 = body18.newObject("Sketcher::SketchObject", "Sketch017")
sketch18.AttachmentSupport = (doc.getObject("YZ_Plane017"), [""])
sketch18.MapMode = "FlatFace"
sketch18.AttachmentOffset = App.Placement(V(0, 0, 34.125 * 25.4), App.Rotation())
sketch18.addGeometry([
    Part.LineSegment(V(0, 1295.4, 0), V(0, 1257.3, 0)),
    Part.LineSegment(V(0, 1257.3, 0), V(85.725, 1257.3, 0)),
    Part.LineSegment(V(85.725, 1257.3, 0), V(85.725, 1295.4, 0)),
    Part.LineSegment(V(85.725, 1295.4, 0), V(0, 1295.4, 0)),
], False)
sketch18.addConstraint([
    Sketcher.Constraint("Coincident", 0, 2, 1, 1),
    Sketcher.Constraint("Coincident", 1, 2, 2, 1),
    Sketcher.Constraint("Coincident", 2, 2, 3, 1),
    Sketcher.Constraint("Coincident", 3, 2, 0, 1),
    Sketcher.Constraint("Vertical", 0),
    Sketcher.Constraint("Horizontal", 1),
    Sketcher.Constraint("Vertical", 2),
    Sketcher.Constraint("Horizontal", 3),
    Sketcher.Constraint("PointOnObject", 0, 2, -2),
    Sketcher.Constraint("DistanceY", 0, 2, 0, 1, Q("1.5 in")),
    Sketcher.Constraint("DistanceY", -1, 1, 2, 2, Q("51 in")),
    Sketcher.Constraint("DistanceX", 1, 1, 1, 2, Q("3.375 in")),
])
pad18 = body18.newObject("PartDesign::Pad", "Pad017")
pad18.Profile = sketch18
pad18.Length = Q("31.25 in")
body19 = doc.addObject("PartDesign::Body", "Body018")

sketch19 = body19.newObject("Sketcher::SketchObject", "Sketch018")
sketch19.AttachmentSupport = (doc.getObject("YZ_Plane018"), [""])
sketch19.MapMode = "FlatFace"
sketch19.AttachmentOffset = App.Placement(V(0, 0, 1.5 * 25.4), App.Rotation())
sketch19.addGeometry([
    Part.LineSegment(V(0, 1295.4, 0), V(0, 1257.3, 0)),
    Part.LineSegment(V(0, 1257.3, 0), V(85.725, 1257.3, 0)),
    Part.LineSegment(V(85.725, 1257.3, 0), V(85.725, 1295.4, 0)),
    Part.LineSegment(V(85.725, 1295.4, 0), V(0, 1295.4, 0)),
], False)
sketch19.addConstraint([
    Sketcher.Constraint("Coincident", 0, 2, 1, 1),
    Sketcher.Constraint("Coincident", 1, 2, 2, 1),
    Sketcher.Constraint("Coincident", 2, 2, 3, 1),
    Sketcher.Constraint("Coincident", 3, 2, 0, 1),
    Sketcher.Constraint("Vertical", 0),
    Sketcher.Constraint("Horizontal", 1),
    Sketcher.Constraint("Vertical", 2),
    Sketcher.Constraint("Horizontal", 3),
    Sketcher.Constraint("PointOnObject", 0, 2, -2),
    Sketcher.Constraint("DistanceY", 0, 2, 0, 1, Q("1.5 in")),
    Sketcher.Constraint("DistanceY", -1, 1, 2, 2, Q("51 in")),
    Sketcher.Constraint("DistanceX", 1, 1, 1, 2, Q("3.375 in")),
])
pad19 = body19.newObject("PartDesign::Pad", "Pad018")
pad19.Profile = sketch19
pad19.Length = Q("31.125 in")
body20 = doc.addObject("PartDesign::Body", "Body019")

sketch20 = body20.newObject("Sketcher::SketchObject", "Sketch019")
sketch20.AttachmentSupport = (doc.getObject("XY_Plane019"), [""])
sketch20.MapMode = "FlatFace"
sketch20.AttachmentOffset = App.Placement(V(0, 0, 1.5 * 25.4), App.Rotation())
sketch20.addGeometry([
    Part.LineSegment(V(38.1, 52.3875, 0), V(38.1, 42.8625, 0)),
    Part.LineSegment(V(38.1, 42.8625, 0), V(828.675, 42.8625, 0)),
    Part.LineSegment(V(828.675, 42.8625, 0), V(828.675, 52.3875, 0)),
    Part.LineSegment(V(828.675, 52.3875, 0), V(38.1, 52.3875, 0)),
], False)
sketch20.addConstraint([
    Sketcher.Constraint("Coincident", 0, 2, 1, 1),
    Sketcher.Constraint("Coincident", 1, 2, 2, 1),
    Sketcher.Constraint("Coincident", 2, 2, 3, 1),
    Sketcher.Constraint("Coincident", 3, 2, 0, 1),
    Sketcher.Constraint("Vertical", 0),
    Sketcher.Constraint("Horizontal", 1),
    Sketcher.Constraint("Vertical", 2),
    Sketcher.Constraint("Horizontal", 3),
    Sketcher.Constraint("DistanceX", -1, 1, 0, 2, Q("1.5 in")),
    Sketcher.Constraint("DistanceX", 1, 1, 1, 2, Q("31.125 in")),
    Sketcher.Constraint("DistanceY", 0, 2, 0, 1, Q("0.375 in")),
    Sketcher.Constraint("DistanceY", -1, 1, 0, 2, Q("1.6875 in")),
])
pad20 = body20.newObject("PartDesign::Pad", "Pad019")
pad20.Profile = sketch20
pad20.Length = Q("48 in")
body21 = doc.addObject("PartDesign::Body", "Body020")

sketch21 = body21.newObject("Sketcher::SketchObject", "Sketch020")
sketch21.AttachmentSupport = (doc.getObject("XY_Plane020"), [""])
sketch21.MapMode = "FlatFace"
sketch21.AttachmentOffset = App.Placement(V(0, 0, 51 * 25.4), App.Rotation())
sketch21.addGeometry([
    Part.LineSegment(V(38.1, 52.3875, 0), V(38.1, 42.8625, 0)),
    Part.LineSegment(V(38.1, 42.8625, 0), V(828.675, 42.8625, 0)),
    Part.LineSegment(V(828.675, 42.8625, 0), V(828.675, 52.3875, 0)),
    Part.LineSegment(V(828.675, 52.3875, 0), V(38.1, 52.3875, 0)),
], False)
sketch21.addConstraint([
    Sketcher.Constraint("Coincident", 0, 2, 1, 1),
    Sketcher.Constraint("Coincident", 1, 2, 2, 1),
    Sketcher.Constraint("Coincident", 2, 2, 3, 1),
    Sketcher.Constraint("Coincident", 3, 2, 0, 1),
    Sketcher.Constraint("Vertical", 0),
    Sketcher.Constraint("Horizontal", 1),
    Sketcher.Constraint("Vertical", 2),
    Sketcher.Constraint("Horizontal", 3),
    Sketcher.Constraint("DistanceX", -1, 1, 0, 2, Q("1.5 in")),
    Sketcher.Constraint("DistanceX", 1, 1, 1, 2, Q("31.125 in")),
    Sketcher.Constraint("DistanceY", 0, 2, 0, 1, Q("0.375 in")),
    Sketcher.Constraint("DistanceY", -1, 1, 0, 2, Q("1.6875 in")),
])
pad21 = body21.newObject("PartDesign::Pad", "Pad020")
pad21.Profile = sketch21
pad21.Length = Q("30 in")
body22 = doc.addObject("PartDesign::Body", "Body021")

sketch22 = body22.newObject("Sketcher::SketchObject", "Sketch021")
sketch22.AttachmentSupport = (doc.getObject("XY_Plane021"), [""])
sketch22.MapMode = "FlatFace"
sketch22.AttachmentOffset = App.Placement(V(0, 0, 82.5 * 25.4), App.Rotation())
sketch22.addGeometry([
    Part.LineSegment(V(38.1, 47.625, 0), V(38.1, 38.1, 0)),
    Part.LineSegment(V(38.1, 38.1, 0), V(828.675, 38.1, 0)),
    Part.LineSegment(V(828.675, 38.1, 0), V(828.675, 47.625, 0)),
    Part.LineSegment(V(828.675, 47.625, 0), V(38.1, 47.625, 0)),
], False)
sketch22.addConstraint([
    Sketcher.Constraint("Coincident", 0, 2, 1, 1),
    Sketcher.Constraint("Coincident", 1, 2, 2, 1),
    Sketcher.Constraint("Coincident", 2, 2, 3, 1),
    Sketcher.Constraint("Coincident", 3, 2, 0, 1),
    Sketcher.Constraint("Vertical", 0),
    Sketcher.Constraint("Horizontal", 1),
    Sketcher.Constraint("Vertical", 2),
    Sketcher.Constraint("Horizontal", 3),
    Sketcher.Constraint("DistanceX", -1, 1, 0, 2, Q("1.5 in")),
    Sketcher.Constraint("DistanceY", -1, 1, 0, 2, Q("1.5 in")),
    Sketcher.Constraint("DistanceX", 1, 1, 1, 2, Q("31.125 in")),
    Sketcher.Constraint("DistanceY", 0, 2, 0, 1, Q("0.375 in")),
])
pad22 = body22.newObject("PartDesign::Pad", "Pad021")
pad22.Profile = sketch22
pad22.Length = Q("12 in")

doc.recompute()
